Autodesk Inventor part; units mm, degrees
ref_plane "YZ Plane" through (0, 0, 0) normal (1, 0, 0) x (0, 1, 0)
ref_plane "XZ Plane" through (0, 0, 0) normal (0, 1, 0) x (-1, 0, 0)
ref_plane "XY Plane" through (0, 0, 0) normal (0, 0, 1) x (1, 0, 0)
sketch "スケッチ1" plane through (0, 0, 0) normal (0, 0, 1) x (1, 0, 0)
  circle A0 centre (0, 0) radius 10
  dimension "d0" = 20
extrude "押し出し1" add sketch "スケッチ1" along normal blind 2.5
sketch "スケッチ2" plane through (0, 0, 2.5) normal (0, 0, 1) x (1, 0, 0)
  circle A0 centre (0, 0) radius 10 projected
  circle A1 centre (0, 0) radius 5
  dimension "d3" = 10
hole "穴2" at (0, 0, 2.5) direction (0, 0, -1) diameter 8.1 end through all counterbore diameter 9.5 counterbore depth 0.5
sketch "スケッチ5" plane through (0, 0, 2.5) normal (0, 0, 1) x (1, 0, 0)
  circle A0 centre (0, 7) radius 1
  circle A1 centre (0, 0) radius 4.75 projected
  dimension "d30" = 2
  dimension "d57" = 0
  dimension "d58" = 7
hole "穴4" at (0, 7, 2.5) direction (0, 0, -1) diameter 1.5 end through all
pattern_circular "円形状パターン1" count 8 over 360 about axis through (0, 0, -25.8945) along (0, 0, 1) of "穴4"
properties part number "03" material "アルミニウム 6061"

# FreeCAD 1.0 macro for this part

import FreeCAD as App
import Part
import Sketcher

doc = App.newDocument("Part")
body = doc.addObject("PartDesign::Body", "Body")

sketch1 = body.newObject("Sketcher::SketchObject", "Sketch")
sketch1.AttachmentSupport = (doc.getObject("XY_Plane"), [""])
sketch1.MapMode = "FlatFace"
sketch1.addGeometry(Part.Circle(App.Vector(0, 0, 0), App.Vector(0, 0, 1), 10), False)
sketch1.addConstraint([
    Sketcher.Constraint("Coincident", 0, 3, -1, 1),
    Sketcher.Constraint("Diameter", 0, 20.0),
])
pad1 = body.newObject("PartDesign::Pad", "Pad")
pad1.Profile = sketch1
pad1.Length = 2.5

sketch2 = body.newObject("Sketcher::SketchObject", "Sketch001")
sketch2.AttachmentSupport = (doc.getObject("XY_Plane"), [""])
sketch2.MapMode = "FlatFace"
sketch2.AttachmentOffset = App.Placement(App.Vector(0, 0, 2.5), App.Rotation())
sketch2.addGeometry(Part.Circle(App.Vector(0, 0, 0), App.Vector(0, 0, 1), 4), False)
sketch2.addConstraint([
    Sketcher.Constraint("Coincident", 0, 3, -1, 1),
    Sketcher.Constraint("Diameter", 0, 8.1),
])
doc.recompute()
hole = body.newObject("PartDesign::Hole", "Hole")
hole.Profile = sketch2
hole.ThreadType = "None"
hole.Diameter = 8.1
hole.DepthType = "ThroughAll"
hole.HoleCutType = "Counterbore"
hole.HoleCutDiameter = 9.5
hole.HoleCutDepth = 0.5

sketch3 = body.newObject("Sketcher::SketchObject", "Sketch002")
sketch3.AttachmentSupport = (doc.getObject("XY_Plane"), [""])
sketch3.MapMode = "FlatFace"
sketch3.AttachmentOffset = App.Placement(App.Vector(0, 0, 2.5), App.Rotation())
sketch3.addGeometry(Part.Circle(App.Vector(0, 7, 0), App.Vector(0, 0, 1), 0.8), False)
sketch3.addConstraint([
    Sketcher.Constraint("PointOnObject", 0, 3, -2),
    Sketcher.Constraint("Diameter", 0, 1.5),
    Sketcher.Constraint("DistanceY", -1, 1, 0, 3, 7.0),
])
doc.recompute()
hole2 = body.newObject("PartDesign::Hole", "Hole001")
hole2.Profile = sketch3
hole2.ThreadType = "None"
hole2.Diameter = 1.5
hole2.DepthType = "ThroughAll"
doc.recompute()

polarpattern = body.newObject("PartDesign::PolarPattern", "PolarPattern")
polarpattern.Originals = [hole2]
polarpattern.Axis = (doc.getObject("Z_Axis"), [""])
polarpattern.Angle = 360
polarpattern.Occurrences = 8
body.Tip = polarpattern

doc.recompute()
